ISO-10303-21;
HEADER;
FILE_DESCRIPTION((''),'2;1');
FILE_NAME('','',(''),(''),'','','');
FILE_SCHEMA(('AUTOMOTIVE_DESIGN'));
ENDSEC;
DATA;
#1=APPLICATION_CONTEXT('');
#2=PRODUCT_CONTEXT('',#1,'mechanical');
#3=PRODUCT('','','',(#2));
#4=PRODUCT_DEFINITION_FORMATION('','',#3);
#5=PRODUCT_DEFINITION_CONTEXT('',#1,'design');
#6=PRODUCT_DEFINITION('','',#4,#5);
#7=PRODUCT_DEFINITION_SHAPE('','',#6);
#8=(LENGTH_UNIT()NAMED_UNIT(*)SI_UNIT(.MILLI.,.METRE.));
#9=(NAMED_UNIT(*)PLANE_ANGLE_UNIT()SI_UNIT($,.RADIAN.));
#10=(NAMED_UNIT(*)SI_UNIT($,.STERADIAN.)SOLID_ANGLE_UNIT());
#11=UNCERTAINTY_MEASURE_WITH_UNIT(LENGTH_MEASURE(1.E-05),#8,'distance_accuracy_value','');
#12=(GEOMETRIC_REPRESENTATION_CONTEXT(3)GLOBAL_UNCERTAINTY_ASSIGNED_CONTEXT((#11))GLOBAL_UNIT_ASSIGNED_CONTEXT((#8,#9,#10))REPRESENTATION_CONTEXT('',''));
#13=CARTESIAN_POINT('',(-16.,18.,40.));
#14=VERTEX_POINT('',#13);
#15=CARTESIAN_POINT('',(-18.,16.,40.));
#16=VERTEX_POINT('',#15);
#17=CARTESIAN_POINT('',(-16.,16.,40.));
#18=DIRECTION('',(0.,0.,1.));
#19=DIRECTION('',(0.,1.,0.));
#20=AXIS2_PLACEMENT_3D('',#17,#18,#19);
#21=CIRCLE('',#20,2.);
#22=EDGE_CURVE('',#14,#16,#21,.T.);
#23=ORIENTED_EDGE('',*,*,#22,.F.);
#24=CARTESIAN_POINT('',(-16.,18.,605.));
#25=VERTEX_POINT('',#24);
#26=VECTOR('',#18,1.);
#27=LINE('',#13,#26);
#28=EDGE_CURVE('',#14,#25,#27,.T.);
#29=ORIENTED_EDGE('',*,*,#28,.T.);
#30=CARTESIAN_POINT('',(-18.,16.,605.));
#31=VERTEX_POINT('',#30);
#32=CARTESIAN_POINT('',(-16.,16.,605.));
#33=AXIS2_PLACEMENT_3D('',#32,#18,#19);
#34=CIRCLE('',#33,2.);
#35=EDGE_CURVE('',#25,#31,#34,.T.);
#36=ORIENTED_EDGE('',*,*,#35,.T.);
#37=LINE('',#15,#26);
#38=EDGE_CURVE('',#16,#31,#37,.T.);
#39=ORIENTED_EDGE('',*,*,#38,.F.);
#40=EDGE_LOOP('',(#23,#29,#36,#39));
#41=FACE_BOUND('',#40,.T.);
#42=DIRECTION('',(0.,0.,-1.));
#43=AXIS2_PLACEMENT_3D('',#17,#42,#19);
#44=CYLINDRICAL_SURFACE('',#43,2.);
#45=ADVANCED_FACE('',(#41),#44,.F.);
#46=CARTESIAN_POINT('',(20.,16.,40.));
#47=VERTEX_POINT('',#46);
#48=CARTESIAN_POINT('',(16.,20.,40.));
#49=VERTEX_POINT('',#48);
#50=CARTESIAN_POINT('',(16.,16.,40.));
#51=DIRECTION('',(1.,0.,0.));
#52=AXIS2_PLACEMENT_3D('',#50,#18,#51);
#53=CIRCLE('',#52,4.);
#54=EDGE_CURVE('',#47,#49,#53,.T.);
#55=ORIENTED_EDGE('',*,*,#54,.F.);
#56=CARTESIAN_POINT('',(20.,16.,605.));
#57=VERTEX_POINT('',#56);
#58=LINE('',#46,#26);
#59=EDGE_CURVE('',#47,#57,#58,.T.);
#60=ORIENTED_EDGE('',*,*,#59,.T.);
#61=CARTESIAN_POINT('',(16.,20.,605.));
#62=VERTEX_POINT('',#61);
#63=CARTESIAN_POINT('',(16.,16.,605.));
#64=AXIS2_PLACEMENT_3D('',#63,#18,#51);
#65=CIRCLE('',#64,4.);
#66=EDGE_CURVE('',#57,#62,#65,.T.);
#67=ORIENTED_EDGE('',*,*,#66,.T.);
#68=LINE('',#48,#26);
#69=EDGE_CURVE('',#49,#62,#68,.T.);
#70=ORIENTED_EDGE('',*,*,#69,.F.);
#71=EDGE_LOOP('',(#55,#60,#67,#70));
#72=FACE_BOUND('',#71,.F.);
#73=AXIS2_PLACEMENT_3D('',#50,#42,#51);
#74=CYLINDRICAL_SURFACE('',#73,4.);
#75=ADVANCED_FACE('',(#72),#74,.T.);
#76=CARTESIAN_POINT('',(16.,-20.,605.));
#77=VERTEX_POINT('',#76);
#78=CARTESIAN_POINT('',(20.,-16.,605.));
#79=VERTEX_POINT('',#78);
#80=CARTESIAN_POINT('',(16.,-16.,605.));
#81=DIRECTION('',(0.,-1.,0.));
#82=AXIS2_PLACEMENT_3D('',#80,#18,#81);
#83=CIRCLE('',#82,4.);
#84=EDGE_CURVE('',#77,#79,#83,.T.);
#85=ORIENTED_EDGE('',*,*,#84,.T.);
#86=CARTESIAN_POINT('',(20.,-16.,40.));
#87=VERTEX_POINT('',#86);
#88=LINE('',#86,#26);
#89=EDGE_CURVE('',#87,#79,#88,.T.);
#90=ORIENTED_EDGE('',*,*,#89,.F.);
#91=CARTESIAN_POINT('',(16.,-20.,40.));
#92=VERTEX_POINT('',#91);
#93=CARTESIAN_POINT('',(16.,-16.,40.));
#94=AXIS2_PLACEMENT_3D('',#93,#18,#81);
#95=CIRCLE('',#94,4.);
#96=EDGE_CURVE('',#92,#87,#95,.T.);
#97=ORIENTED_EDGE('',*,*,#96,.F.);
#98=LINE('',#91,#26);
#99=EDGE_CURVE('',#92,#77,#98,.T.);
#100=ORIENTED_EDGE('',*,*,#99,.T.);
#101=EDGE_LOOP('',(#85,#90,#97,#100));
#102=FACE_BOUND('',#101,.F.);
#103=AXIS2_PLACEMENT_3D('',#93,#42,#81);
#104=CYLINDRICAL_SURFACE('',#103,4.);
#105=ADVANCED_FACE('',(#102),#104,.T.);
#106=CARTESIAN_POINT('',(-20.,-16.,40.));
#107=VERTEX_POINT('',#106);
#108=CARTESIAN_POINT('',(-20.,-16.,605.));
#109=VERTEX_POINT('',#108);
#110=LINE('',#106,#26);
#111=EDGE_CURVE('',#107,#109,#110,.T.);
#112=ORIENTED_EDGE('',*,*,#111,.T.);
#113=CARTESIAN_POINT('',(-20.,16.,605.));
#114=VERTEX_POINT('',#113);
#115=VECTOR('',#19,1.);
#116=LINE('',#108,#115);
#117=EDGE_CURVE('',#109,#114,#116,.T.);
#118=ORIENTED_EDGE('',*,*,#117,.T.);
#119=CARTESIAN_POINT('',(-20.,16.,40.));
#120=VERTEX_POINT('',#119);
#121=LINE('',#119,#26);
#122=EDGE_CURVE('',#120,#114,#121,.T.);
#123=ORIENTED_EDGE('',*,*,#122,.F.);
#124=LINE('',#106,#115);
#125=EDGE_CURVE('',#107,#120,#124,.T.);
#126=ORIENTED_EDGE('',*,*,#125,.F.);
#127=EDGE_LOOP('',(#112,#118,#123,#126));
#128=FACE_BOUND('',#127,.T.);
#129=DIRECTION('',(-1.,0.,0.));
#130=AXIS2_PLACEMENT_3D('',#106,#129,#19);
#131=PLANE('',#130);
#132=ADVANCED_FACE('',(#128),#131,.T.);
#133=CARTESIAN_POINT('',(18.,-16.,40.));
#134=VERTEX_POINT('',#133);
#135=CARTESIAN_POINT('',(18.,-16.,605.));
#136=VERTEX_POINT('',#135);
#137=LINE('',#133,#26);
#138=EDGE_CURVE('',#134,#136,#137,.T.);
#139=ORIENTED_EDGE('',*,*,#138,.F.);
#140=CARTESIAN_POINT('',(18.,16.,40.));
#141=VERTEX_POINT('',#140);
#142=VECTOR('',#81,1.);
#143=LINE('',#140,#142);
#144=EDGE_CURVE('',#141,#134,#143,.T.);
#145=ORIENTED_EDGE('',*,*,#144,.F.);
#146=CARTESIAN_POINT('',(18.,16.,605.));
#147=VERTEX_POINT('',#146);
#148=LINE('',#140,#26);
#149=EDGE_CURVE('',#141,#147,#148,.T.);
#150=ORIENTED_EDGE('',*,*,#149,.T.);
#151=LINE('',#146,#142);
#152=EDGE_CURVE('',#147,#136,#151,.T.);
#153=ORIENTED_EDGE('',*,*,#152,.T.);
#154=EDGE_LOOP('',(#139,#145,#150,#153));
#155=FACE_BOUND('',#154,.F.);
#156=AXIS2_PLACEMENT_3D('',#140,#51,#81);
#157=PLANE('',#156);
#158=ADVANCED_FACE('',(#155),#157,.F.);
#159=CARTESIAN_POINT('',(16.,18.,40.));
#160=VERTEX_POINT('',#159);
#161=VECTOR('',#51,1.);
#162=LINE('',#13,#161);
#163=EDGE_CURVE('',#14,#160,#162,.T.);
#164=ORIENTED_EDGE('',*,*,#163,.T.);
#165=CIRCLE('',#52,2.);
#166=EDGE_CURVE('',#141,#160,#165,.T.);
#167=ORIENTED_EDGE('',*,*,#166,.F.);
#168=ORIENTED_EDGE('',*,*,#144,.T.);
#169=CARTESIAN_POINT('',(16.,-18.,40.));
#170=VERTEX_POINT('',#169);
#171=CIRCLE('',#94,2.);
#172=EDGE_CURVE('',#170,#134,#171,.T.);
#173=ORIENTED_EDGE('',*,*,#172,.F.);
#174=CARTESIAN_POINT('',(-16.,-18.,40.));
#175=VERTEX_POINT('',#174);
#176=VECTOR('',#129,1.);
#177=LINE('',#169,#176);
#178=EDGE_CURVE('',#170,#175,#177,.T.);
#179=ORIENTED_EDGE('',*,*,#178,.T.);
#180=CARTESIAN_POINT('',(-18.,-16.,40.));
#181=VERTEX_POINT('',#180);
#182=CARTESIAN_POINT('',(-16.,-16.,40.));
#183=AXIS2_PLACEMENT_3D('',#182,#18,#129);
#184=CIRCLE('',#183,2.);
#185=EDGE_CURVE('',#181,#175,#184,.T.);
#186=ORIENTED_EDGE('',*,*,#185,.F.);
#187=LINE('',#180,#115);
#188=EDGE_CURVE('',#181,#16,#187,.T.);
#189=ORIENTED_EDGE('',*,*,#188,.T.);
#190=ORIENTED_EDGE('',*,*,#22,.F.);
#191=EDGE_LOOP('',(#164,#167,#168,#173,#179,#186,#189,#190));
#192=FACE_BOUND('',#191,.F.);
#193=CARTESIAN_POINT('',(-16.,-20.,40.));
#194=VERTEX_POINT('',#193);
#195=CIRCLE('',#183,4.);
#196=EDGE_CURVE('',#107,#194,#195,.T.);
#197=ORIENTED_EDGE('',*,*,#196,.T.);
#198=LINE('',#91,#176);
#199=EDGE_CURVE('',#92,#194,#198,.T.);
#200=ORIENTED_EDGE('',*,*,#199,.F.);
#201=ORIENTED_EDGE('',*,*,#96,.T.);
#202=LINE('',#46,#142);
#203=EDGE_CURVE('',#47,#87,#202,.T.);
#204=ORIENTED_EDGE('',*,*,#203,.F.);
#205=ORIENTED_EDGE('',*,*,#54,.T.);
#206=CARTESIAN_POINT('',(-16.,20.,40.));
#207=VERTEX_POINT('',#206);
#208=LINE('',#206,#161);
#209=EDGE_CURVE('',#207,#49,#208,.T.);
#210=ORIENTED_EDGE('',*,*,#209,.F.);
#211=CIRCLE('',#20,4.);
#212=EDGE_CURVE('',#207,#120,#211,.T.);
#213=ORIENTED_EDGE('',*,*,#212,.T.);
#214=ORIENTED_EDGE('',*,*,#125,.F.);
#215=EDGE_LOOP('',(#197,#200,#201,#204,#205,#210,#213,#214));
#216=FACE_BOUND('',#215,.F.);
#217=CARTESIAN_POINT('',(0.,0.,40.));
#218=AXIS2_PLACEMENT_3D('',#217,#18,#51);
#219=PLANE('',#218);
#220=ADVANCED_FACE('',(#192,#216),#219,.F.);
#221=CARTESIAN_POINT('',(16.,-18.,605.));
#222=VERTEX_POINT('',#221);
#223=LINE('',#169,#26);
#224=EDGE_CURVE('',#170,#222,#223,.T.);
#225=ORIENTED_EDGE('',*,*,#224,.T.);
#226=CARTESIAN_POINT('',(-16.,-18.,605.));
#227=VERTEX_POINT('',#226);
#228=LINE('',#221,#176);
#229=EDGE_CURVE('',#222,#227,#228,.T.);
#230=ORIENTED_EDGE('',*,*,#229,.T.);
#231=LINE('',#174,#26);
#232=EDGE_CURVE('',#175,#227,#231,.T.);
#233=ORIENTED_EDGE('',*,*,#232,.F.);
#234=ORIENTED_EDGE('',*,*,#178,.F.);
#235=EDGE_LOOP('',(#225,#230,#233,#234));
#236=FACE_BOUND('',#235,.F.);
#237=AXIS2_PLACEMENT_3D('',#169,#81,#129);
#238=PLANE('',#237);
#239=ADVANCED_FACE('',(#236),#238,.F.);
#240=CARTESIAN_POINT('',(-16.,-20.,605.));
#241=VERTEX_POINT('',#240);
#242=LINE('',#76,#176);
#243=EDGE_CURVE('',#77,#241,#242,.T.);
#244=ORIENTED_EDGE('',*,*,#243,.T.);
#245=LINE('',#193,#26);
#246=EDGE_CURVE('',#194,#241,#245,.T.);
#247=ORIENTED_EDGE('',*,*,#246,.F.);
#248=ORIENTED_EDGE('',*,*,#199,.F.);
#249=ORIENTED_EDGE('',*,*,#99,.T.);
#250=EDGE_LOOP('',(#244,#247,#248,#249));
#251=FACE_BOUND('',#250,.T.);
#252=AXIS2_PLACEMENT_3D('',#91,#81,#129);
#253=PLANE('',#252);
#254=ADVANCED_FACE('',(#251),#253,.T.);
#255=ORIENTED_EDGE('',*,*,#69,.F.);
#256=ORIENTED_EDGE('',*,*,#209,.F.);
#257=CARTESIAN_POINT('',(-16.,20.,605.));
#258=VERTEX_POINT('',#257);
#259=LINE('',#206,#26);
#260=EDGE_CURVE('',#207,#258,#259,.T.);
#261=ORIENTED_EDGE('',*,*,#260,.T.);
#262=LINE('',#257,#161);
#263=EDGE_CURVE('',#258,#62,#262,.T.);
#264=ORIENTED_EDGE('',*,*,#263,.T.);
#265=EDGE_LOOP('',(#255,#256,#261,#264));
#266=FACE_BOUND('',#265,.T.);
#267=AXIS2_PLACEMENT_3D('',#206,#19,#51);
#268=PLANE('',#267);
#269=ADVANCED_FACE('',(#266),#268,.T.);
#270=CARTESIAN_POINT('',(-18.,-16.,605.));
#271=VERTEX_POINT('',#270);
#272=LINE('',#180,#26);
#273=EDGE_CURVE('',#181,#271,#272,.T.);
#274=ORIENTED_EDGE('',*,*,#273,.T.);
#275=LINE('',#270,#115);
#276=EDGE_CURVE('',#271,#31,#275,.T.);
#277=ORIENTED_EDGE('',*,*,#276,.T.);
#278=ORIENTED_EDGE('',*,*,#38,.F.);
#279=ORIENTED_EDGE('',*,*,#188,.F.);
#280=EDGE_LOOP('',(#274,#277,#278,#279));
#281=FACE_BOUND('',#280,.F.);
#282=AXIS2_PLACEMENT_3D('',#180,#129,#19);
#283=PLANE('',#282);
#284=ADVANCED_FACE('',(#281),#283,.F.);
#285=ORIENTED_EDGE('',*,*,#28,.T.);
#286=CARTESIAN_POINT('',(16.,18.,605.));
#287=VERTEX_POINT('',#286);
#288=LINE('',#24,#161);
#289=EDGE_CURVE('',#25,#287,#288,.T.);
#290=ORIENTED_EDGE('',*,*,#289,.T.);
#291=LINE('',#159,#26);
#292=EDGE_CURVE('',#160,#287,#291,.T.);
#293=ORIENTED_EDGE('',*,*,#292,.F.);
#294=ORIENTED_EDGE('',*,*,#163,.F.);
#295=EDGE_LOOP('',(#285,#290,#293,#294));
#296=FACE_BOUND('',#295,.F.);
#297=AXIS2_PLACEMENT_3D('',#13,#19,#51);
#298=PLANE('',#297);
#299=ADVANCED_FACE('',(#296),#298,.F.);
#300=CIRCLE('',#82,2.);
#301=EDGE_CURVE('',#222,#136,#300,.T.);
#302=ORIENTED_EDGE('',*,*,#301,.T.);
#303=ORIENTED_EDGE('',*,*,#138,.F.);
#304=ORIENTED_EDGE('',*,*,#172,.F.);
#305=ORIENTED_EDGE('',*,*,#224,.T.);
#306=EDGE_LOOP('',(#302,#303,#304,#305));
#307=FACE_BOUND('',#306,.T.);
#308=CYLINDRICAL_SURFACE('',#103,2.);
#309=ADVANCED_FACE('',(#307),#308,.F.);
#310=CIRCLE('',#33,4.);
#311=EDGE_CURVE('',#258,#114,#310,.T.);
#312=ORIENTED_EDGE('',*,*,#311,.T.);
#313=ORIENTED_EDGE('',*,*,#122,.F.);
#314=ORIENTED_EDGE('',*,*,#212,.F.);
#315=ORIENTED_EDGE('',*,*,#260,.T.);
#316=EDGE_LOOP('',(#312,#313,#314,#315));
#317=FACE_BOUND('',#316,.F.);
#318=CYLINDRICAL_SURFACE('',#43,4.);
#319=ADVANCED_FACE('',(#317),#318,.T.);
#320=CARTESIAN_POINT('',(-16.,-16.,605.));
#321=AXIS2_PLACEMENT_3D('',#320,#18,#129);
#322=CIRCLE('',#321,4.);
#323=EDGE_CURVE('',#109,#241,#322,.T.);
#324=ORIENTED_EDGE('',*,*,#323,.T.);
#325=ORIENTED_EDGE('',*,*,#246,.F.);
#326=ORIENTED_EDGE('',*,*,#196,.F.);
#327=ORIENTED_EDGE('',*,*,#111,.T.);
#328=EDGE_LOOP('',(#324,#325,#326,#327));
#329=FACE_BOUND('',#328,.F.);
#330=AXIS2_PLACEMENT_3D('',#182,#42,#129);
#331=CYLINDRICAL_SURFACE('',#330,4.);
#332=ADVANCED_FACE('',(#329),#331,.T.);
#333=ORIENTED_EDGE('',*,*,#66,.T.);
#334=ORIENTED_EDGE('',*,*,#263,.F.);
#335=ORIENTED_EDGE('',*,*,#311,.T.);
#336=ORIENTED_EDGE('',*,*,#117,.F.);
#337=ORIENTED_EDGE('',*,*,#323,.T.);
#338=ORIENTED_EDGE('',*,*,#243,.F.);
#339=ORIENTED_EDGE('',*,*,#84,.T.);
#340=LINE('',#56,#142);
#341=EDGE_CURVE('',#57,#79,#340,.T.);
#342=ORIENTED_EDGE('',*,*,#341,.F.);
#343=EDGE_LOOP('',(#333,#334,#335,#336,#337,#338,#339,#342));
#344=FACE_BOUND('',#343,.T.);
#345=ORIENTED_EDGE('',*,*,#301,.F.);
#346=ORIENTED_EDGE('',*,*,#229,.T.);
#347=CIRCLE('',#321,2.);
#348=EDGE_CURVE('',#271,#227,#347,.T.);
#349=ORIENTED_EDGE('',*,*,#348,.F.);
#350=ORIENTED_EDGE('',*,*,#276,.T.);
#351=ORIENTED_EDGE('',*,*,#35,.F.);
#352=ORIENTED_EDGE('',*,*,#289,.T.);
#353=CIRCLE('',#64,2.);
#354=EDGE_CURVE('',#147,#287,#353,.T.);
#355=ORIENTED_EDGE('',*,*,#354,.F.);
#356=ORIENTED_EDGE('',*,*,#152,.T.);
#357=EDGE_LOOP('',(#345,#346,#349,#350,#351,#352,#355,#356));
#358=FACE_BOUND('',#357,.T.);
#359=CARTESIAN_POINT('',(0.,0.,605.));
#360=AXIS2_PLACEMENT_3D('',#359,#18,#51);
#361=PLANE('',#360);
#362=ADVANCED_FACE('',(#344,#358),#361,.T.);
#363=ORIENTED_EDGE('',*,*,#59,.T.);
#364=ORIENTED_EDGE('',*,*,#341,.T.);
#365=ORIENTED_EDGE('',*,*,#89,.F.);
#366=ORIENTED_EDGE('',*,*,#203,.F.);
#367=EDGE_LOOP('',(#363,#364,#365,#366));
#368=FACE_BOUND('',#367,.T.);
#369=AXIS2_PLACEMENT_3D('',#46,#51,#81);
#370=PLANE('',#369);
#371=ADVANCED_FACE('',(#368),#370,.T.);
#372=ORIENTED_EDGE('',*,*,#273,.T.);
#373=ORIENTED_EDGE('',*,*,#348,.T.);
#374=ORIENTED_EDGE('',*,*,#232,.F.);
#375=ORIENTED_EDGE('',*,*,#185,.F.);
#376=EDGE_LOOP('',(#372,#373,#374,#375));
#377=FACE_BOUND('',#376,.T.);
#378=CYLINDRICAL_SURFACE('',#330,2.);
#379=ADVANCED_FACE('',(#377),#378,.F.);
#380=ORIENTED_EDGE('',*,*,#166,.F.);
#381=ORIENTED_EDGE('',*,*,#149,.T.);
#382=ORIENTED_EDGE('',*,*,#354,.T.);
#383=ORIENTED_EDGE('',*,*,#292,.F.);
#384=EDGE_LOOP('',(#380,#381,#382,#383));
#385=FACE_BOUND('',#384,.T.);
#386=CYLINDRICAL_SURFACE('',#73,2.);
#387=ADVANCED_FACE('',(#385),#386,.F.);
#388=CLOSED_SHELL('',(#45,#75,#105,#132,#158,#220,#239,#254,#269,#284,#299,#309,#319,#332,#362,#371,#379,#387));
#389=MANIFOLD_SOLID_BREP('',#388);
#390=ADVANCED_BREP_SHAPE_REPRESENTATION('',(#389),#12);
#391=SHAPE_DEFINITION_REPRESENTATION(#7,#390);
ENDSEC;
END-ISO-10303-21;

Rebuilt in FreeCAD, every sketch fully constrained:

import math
import FreeCAD as App
import Part
import Sketcher

doc = App.newDocument("Part")
body = doc.addObject("PartDesign::Body", "Body")

sketch1 = doc.addObject("Sketcher::SketchObject", "Sketch")
body.addObject(sketch1)
sketch1.AttachmentSupport = (doc.XY_Plane, [""])
sketch1.MapMode = "FlatFace"
sketch1.AttachmentOffset = App.Placement(App.Vector(0, 0, 40), App.Rotation())
sketch1.addGeometry([
    Part.LineSegment(App.Vector(-20, 16, 0), App.Vector(-20, -16, 0)),
    Part.ArcOfCircle(Part.Circle(App.Vector(-16, -16, 0), App.Vector(0, 0, 1), 4), math.radians(180), math.radians(270)),
    Part.LineSegment(App.Vector(-16, -20, 0), App.Vector(16, -20, 0)),
    Part.ArcOfCircle(Part.Circle(App.Vector(16, -16, 0), App.Vector(0, 0, 1), 4), math.radians(-90), math.radians(0)),
    Part.LineSegment(App.Vector(20, -16, 0), App.Vector(20, 16, 0)),
    Part.ArcOfCircle(Part.Circle(App.Vector(16, 16, 0), App.Vector(0, 0, 1), 4), math.radians(0), math.radians(90)),
    Part.LineSegment(App.Vector(16, 20, 0), App.Vector(-16, 20, 0)),
    Part.ArcOfCircle(Part.Circle(App.Vector(-16, 16, 0), App.Vector(0, 0, 1), 4), math.radians(90), math.radians(180)),
    Part.ArcOfCircle(Part.Circle(App.Vector(-16, 16, 0), App.Vector(0, 0, 1), 2), math.radians(90), math.radians(180)),
    Part.LineSegment(App.Vector(-16, 18, 0), App.Vector(16, 18, 0)),
    Part.ArcOfCircle(Part.Circle(App.Vector(16, 16, 0), App.Vector(0, 0, 1), 2), math.radians(0), math.radians(90)),
    Part.LineSegment(App.Vector(18, 16, 0), App.Vector(18, -16, 0)),
    Part.ArcOfCircle(Part.Circle(App.Vector(16, -16, 0), App.Vector(0, 0, 1), 2), math.radians(-90), math.radians(0)),
    Part.LineSegment(App.Vector(16, -18, 0), App.Vector(-16, -18, 0)),
    Part.ArcOfCircle(Part.Circle(App.Vector(-16, -16, 0), App.Vector(0, 0, 1), 2), math.radians(180), math.radians(270)),
    Part.LineSegment(App.Vector(-18, -16, 0), App.Vector(-18, 16, 0)),
], False)
sketch1.addConstraint([
    Sketcher.Constraint("Tangent", 0, 2, 1, 1),
    Sketcher.Constraint("Tangent", 1, 2, 2, 1),
    Sketcher.Constraint("Tangent", 2, 2, 3, 1),
    Sketcher.Constraint("Tangent", 3, 2, 4, 1),
    Sketcher.Constraint("Tangent", 4, 2, 5, 1),
    Sketcher.Constraint("Tangent", 5, 2, 6, 1),
    Sketcher.Constraint("Tangent", 6, 2, 7, 1),
    Sketcher.Constraint("Tangent", 7, 2, 0, 1),
    Sketcher.Constraint("Tangent", 8, 1, 9, 1),
    Sketcher.Constraint("Tangent", 9, 2, 10, 2),
    Sketcher.Constraint("Tangent", 10, 1, 11, 1),
    Sketcher.Constraint("Tangent", 11, 2, 12, 2),
    Sketcher.Constraint("Tangent", 12, 1, 13, 1),
    Sketcher.Constraint("Tangent", 13, 2, 14, 2),
    Sketcher.Constraint("Tangent", 14, 1, 15, 1),
    Sketcher.Constraint("Tangent", 15, 2, 8, 2),
    Sketcher.Constraint("Vertical", 0),
    Sketcher.Constraint("Horizontal", 2),
    Sketcher.Constraint("Vertical", 4),
    Sketcher.Constraint("Horizontal", 6),
    Sketcher.Constraint("Horizontal", 9),
    Sketcher.Constraint("Vertical", 11),
    Sketcher.Constraint("Horizontal", 13),
    Sketcher.Constraint("Vertical", 15),
    Sketcher.Constraint("Coincident", 8, 3, 7, 3),
    Sketcher.Constraint("Coincident", 10, 3, 5, 3),
    Sketcher.Constraint("Coincident", 12, 3, 3, 3),
    Sketcher.Constraint("Equal", 1, 3),
    Sketcher.Constraint("Equal", 3, 5),
    Sketcher.Constraint("Equal", 5, 7),
    Sketcher.Constraint("Equal", 12, 14),
    Sketcher.Constraint("Symmetric", 1, 3, 5, 3, -1, 1),
    Sketcher.Constraint("Equal", 13, 0),
    Sketcher.Constraint("Radius", 1, 4.0),
    Sketcher.Constraint("Radius", 8, 2.0),
    Sketcher.Constraint("DistanceX", 0, 2, -1, 1, 20.0),
])
pad1 = doc.addObject("PartDesign::Pad", "Pad")
body.addObject(pad1)
pad1.Profile = sketch1
pad1.Length = 565

doc.recompute()
